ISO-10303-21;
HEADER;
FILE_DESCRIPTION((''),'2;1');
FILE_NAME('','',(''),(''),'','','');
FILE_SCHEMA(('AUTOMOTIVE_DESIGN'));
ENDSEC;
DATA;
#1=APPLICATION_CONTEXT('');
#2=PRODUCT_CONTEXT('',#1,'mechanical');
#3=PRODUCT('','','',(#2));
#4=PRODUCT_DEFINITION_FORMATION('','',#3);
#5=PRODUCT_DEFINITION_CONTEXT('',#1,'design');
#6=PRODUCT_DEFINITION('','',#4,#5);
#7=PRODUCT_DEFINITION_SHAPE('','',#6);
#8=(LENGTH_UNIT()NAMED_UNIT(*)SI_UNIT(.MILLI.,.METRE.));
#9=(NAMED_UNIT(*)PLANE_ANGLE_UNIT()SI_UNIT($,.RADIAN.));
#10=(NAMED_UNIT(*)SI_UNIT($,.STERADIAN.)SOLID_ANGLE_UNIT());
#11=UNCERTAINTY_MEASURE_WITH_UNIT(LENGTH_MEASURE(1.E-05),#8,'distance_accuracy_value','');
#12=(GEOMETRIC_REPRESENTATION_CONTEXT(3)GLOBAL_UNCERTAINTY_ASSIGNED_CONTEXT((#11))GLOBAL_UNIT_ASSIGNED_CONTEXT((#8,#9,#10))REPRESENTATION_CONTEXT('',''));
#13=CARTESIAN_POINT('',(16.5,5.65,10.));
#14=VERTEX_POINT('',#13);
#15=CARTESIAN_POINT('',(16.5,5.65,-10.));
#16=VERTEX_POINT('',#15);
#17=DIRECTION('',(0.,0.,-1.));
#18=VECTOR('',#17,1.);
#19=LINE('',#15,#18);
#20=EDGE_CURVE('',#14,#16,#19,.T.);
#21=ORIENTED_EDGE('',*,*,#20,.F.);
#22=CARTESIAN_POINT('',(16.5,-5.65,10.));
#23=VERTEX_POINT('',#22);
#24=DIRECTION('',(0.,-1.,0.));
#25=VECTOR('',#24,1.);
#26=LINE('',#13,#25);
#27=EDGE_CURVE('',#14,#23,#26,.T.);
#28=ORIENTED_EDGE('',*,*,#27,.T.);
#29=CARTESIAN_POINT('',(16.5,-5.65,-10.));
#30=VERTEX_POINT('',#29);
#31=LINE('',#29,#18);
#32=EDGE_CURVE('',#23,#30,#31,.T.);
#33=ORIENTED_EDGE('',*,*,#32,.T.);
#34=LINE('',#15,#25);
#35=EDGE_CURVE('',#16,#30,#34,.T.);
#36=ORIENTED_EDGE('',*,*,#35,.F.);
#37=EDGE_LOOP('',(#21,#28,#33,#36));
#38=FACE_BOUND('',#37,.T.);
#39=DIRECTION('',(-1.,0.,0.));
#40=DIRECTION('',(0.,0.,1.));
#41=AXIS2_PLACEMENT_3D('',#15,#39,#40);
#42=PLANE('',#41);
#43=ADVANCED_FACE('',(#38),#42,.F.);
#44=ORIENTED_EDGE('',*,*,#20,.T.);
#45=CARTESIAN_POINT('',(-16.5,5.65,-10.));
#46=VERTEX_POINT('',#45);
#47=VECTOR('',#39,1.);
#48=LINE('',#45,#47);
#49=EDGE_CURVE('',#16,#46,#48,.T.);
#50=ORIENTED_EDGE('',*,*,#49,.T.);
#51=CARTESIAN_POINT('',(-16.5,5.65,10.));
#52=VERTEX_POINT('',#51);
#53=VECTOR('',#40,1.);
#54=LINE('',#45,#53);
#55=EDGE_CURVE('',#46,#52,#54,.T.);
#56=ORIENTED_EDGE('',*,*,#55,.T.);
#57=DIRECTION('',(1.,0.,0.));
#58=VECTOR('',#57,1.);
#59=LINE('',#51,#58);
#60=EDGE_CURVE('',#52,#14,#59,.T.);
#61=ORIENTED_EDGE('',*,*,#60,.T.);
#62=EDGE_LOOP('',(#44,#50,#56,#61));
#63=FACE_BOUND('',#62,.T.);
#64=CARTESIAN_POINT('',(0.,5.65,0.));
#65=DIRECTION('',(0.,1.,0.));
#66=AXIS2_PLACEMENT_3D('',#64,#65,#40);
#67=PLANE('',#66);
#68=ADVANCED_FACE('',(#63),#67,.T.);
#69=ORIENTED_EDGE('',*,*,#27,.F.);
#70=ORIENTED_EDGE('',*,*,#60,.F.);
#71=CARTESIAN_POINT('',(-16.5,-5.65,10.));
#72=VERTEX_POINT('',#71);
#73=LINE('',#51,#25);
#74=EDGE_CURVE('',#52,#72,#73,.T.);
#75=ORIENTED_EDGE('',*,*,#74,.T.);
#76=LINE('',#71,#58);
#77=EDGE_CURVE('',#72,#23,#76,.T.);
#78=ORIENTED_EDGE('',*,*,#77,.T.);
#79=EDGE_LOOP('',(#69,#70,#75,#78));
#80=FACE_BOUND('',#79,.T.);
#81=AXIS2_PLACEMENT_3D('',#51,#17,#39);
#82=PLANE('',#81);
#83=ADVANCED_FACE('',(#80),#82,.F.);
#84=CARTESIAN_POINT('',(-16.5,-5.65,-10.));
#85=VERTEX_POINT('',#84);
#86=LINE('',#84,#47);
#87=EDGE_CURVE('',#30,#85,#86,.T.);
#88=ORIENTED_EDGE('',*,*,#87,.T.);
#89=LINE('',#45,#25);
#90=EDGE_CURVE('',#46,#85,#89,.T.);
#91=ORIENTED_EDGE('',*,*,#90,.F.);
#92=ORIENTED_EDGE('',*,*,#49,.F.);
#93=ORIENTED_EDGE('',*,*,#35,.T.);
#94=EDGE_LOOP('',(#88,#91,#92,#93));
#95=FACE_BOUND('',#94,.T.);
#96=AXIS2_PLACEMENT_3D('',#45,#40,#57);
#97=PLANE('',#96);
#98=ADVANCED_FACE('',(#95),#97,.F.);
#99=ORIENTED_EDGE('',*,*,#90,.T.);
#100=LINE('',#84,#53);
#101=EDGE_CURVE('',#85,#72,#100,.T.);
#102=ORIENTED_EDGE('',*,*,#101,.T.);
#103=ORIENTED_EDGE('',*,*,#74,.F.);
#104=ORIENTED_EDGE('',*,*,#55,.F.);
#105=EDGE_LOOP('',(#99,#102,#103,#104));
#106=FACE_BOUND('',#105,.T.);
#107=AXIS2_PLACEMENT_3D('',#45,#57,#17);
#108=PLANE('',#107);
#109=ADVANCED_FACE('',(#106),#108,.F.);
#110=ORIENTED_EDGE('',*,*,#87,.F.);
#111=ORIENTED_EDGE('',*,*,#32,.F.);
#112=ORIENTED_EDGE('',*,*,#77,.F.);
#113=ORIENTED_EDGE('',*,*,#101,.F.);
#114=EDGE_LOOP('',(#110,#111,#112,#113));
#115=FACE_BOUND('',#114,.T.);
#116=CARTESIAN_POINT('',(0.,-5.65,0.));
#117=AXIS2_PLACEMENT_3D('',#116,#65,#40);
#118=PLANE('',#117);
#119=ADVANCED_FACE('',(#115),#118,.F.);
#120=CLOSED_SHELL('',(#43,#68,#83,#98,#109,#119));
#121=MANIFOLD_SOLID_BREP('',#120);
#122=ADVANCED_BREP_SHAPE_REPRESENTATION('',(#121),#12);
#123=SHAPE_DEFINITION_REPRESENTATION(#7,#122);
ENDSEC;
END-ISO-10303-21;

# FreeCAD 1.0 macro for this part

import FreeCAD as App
import Part
import Sketcher

V = App.Vector


def add_polygon(sketch, points):
    """Adds a closed chain of lines whose ends are joined by coincident constraints."""
    first, n = sketch.GeometryCount, len(points)
    for a, b in zip(points, points[1:] + points[:1]):
        sketch.addGeometry(Part.LineSegment(App.Vector(*a, 0), App.Vector(*b, 0)), False)
    for i in range(n):
        sketch.addConstraint(Sketcher.Constraint("Coincident", first + i, 2, first + (i + 1) % n, 1))

doc = App.newDocument("Part")
body = doc.addObject("PartDesign::Body", "Body")

# Sketch on XZ plane
sketch1 = body.newObject("Sketcher::SketchObject", "Sketch")
sketch1.AttachmentSupport = (doc.getObject("XZ_Plane"), [""])
sketch1.MapMode = "FlatFace"
add_polygon(sketch1, [(-16.5, -10), (-16.5, 10), (16.5, 10), (16.5, -10)])  # lines 0-3
sketch1.addConstraint(Sketcher.Constraint("Vertical", 0))
sketch1.addConstraint(Sketcher.Constraint("Horizontal", 1))
sketch1.addConstraint(Sketcher.Constraint("Vertical", 2))
sketch1.addConstraint(Sketcher.Constraint("Horizontal", 3))
sketch1.addConstraint(Sketcher.Constraint("Symmetric", 0, 2, 2, 2, -1, 1))
sketch1.addConstraint(Sketcher.Constraint("DistanceX", 1, 1, 1, 2, 33.0))
sketch1.addConstraint(Sketcher.Constraint("DistanceY", 0, 1, 0, 2, 20.0))
pad1 = body.newObject("PartDesign::Pad", "Pad")
pad1.Profile = sketch1
pad1.Length = 11.3
pad1.Midplane = True

doc.recompute()
